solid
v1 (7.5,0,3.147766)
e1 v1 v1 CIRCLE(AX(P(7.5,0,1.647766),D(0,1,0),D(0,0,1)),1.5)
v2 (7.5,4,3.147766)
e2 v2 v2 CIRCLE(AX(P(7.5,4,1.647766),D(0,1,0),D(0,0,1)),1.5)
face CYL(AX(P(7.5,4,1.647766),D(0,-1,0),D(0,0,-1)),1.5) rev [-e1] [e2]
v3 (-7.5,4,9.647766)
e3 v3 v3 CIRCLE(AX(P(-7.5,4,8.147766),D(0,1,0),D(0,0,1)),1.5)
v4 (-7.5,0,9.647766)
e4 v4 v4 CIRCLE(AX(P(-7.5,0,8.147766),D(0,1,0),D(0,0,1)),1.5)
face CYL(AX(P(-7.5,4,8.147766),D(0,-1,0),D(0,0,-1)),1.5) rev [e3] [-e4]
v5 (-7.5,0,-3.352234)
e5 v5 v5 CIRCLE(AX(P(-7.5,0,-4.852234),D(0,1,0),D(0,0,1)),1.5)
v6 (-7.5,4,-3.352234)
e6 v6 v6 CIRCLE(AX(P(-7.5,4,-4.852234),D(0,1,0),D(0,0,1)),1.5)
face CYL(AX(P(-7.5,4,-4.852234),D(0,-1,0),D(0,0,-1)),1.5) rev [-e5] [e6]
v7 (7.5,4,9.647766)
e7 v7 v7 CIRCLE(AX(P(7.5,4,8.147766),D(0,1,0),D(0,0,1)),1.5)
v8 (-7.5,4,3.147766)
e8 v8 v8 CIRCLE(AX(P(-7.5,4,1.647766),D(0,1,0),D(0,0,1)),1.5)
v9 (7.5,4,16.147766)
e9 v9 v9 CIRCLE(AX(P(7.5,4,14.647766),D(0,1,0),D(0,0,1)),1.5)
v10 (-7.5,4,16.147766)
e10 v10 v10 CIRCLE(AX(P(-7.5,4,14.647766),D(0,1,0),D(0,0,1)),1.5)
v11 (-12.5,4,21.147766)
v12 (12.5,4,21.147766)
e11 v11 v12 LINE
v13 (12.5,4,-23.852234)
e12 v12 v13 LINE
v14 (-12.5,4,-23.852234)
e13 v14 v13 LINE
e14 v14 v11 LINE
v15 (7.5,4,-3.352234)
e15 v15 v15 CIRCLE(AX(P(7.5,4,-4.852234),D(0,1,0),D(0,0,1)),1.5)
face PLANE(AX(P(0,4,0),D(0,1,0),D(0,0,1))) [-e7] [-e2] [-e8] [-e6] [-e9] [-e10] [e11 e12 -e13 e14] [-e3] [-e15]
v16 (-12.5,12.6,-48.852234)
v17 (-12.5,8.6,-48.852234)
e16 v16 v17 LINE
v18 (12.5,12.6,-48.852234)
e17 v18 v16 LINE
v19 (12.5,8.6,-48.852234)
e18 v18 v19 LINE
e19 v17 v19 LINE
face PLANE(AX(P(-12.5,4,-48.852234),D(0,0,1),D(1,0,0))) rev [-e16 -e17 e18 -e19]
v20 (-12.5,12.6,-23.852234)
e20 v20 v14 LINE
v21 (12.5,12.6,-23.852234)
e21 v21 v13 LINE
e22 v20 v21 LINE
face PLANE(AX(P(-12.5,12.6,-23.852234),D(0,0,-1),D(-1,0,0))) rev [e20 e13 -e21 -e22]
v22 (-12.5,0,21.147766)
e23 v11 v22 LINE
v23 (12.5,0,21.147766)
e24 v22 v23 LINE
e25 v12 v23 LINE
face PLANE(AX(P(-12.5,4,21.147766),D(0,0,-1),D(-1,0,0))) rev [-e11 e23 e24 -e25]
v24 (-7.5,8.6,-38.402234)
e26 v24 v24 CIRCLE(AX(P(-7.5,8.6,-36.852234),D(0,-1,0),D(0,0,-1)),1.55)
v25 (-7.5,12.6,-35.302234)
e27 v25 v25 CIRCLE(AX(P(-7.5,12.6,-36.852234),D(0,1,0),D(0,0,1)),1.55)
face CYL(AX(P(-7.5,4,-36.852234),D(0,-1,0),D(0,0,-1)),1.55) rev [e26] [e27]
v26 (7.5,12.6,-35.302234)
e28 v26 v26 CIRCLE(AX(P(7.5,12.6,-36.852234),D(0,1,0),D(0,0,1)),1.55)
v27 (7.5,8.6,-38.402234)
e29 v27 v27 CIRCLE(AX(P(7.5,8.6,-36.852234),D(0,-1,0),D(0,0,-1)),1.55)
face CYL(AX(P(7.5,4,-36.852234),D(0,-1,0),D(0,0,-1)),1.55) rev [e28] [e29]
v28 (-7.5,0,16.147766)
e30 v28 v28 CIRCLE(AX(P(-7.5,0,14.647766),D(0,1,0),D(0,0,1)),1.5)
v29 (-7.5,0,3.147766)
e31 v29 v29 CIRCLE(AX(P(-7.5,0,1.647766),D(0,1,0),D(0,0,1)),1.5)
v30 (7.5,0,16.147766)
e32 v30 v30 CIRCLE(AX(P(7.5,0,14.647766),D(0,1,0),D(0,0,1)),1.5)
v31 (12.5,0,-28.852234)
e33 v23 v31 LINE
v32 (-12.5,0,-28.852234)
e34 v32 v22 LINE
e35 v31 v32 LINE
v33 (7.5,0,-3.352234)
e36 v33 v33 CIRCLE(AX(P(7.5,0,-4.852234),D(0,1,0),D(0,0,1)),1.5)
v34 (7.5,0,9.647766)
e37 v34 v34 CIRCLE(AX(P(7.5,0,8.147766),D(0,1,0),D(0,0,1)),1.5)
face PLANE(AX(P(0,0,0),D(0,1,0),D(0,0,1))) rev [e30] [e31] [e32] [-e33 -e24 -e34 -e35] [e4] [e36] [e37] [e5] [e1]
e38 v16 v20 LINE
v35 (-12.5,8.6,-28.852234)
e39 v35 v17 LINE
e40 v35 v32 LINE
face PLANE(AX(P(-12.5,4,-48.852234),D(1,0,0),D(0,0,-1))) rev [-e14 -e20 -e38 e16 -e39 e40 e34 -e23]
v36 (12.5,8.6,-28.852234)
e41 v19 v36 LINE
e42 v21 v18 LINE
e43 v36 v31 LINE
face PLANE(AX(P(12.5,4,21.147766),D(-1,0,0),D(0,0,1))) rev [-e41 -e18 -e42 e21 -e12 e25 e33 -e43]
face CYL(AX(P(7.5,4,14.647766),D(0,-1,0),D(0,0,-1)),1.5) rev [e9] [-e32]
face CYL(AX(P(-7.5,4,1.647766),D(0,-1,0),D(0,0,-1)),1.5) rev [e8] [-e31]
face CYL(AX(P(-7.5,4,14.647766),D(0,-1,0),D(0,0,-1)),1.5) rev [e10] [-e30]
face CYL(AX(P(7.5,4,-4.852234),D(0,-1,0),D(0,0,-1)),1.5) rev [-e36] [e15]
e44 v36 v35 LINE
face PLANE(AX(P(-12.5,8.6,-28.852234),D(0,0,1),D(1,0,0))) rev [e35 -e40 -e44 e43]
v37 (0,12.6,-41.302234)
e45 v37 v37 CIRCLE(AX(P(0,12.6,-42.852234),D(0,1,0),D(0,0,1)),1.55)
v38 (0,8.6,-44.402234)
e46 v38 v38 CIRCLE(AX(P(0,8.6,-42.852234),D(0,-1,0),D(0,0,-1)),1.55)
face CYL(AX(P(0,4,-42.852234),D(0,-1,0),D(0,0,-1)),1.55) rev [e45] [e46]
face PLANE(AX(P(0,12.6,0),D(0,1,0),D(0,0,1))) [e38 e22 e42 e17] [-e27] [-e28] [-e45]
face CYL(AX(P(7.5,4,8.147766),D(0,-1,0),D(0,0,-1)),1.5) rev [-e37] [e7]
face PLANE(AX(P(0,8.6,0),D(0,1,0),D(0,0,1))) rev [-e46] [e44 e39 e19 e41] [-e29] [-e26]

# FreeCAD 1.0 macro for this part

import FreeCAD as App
import Part
import Sketcher

V = App.Vector
Q = App.Units.Quantity


def add_polygon(sketch, points):
    """Adds a closed chain of lines whose ends are joined by coincident constraints."""
    first, n = sketch.GeometryCount, len(points)
    for a, b in zip(points, points[1:] + points[:1]):
        sketch.addGeometry(Part.LineSegment(App.Vector(*a, 0), App.Vector(*b, 0)), False)
    for i in range(n):
        sketch.addConstraint(Sketcher.Constraint("Coincident", first + i, 2, first + (i + 1) % n, 1))

doc = App.newDocument("Part")
body = doc.addObject("PartDesign::Body", "Body")

sketch1 = body.newObject("Sketcher::SketchObject", "Sketch")
sketch1.AttachmentSupport = (doc.getObject("XZ_Plane"), [""])
sketch1.MapMode = "FlatFace"
add_polygon(sketch1, [(-12.5, -48.9), (-12.5, 21.1), (12.5, 21.1), (12.5, -48.9)])
sketch1.addGeometry(Part.Circle(V(-7.5, 14.6, 0), V(0, 0, 1), 1.5), False)
sketch1.addGeometry(Part.Circle(V(-7.5, 8.1, 0), V(0, 0, 1), 1.5), False)
sketch1.addGeometry(Part.Circle(V(-7.5, 1.6, 0), V(0, 0, 1), 1.5), False)
sketch1.addGeometry(Part.Circle(V(-7.5, -4.9, 0), V(0, 0, 1), 1.5), False)
sketch1.addGeometry(Part.Circle(V(7.5, 14.6, 0), V(0, 0, 1), 1.5), False)
sketch1.addGeometry(Part.Circle(V(7.5, 8.1, 0), V(0, 0, 1), 1.5), False)
sketch1.addGeometry(Part.Circle(V(7.5, 1.6, 0), V(0, 0, 1), 1.5), False)
sketch1.addGeometry(Part.Circle(V(7.5, -4.9, 0), V(0, 0, 1), 1.5), False)
sketch1.addGeometry(Part.Circle(V(-7.5, -36.9, 0), V(0, 0, 1), 1.6), False)
sketch1.addGeometry(Part.Circle(V(0, -42.9, 0), V(0, 0, 1), 1.6), False)
sketch1.addGeometry(Part.Circle(V(7.5, -36.9, 0), V(0, 0, 1), 1.6), False)
sketch1.addConstraint([
    Sketcher.Constraint("Vertical", 0),
    Sketcher.Constraint("Horizontal", 1),
    Sketcher.Constraint("Vertical", 2),
    Sketcher.Constraint("Horizontal", 3),
    Sketcher.Constraint("Equal", 4, 5),
    Sketcher.Constraint("Equal", 5, 6),
    Sketcher.Constraint("Equal", 6, 7),
    Sketcher.Constraint("Equal", 7, 8),
    Sketcher.Constraint("Equal", 8, 9),
    Sketcher.Constraint("Equal", 9, 10),
    Sketcher.Constraint("Equal", 10, 11),
    Sketcher.Constraint("Equal", 12, 13),
    Sketcher.Constraint("Equal", 13, 14),
    Sketcher.Constraint("Symmetric", 4, 3, 8, 3, -2),
    Sketcher.Constraint("Symmetric", 5, 3, 9, 3, -2),
    Sketcher.Constraint("Symmetric", 6, 3, 10, 3, -2),
    Sketcher.Constraint("Symmetric", 7, 3, 11, 3, -2),
    Sketcher.Constraint("Symmetric", 12, 3, 14, 3, -2),
    Sketcher.Constraint("PointOnObject", 13, 3, -2),
    Sketcher.Constraint("Vertical", 4, 3, 5, 3),
    Sketcher.Constraint("Vertical", 5, 3, 6, 3),
    Sketcher.Constraint("Vertical", 6, 3, 7, 3),
    Sketcher.Constraint("Vertical", 7, 3, 12, 3),
    Sketcher.Constraint("Diameter", 4, Q("3 mm")),
    Sketcher.Constraint("Diameter", 12, Q("3.1 mm")),
    Sketcher.Constraint("DistanceX", 1, 1, 1, 2, Q("25 mm")),
    Sketcher.Constraint("DistanceY", 0, 1, 0, 2, Q("70 mm")),
    Sketcher.Constraint("DistanceY", 6, 3, 4, 3, Q("13 mm")),
    Sketcher.Constraint("DistanceY", 7, 3, 5, 3, Q("13 mm")),
    Sketcher.Constraint("DistanceX", 4, 3, 8, 3, Q("15 mm")),
    Sketcher.Constraint("DistanceY", 12, 3, 7, 3, Q("32 mm")),
    Sketcher.Constraint("DistanceY", 13, 3, 12, 3, Q("6 mm")),
    Sketcher.Constraint("DistanceX", 0, 2, 4, 3, Q("5 mm")),
    Sketcher.Constraint("DistanceY", 5, 3, 0, 2, Q("13 mm")),
    Sketcher.Constraint("DistanceY", 5, 3, 4, 3, Q("6.5 mm")),
    Sketcher.Constraint("DistanceY", -1, 1, 4, 3, Q("14.647766 mm")),
])
pad1 = body.newObject("PartDesign::Pad", "Pad")
pad1.Profile = sketch1
pad1.Length = 4
pad1.Reversed = True

sketch2 = body.newObject("Sketcher::SketchObject", "Sketch001")
sketch2.AttachmentSupport = (doc.getObject("XZ_Plane"), [""])
sketch2.MapMode = "FlatFace"
sketch2.AttachmentOffset = App.Placement(V(0, 0, -4), App.Rotation())
add_polygon(sketch2, [(-12.5, -48.9), (-12.5, -23.9), (12.5, -23.9), (12.5, -48.9)])
sketch2.addGeometry(Part.Circle(V(-7.5, -36.9, 0), V(0, 0, 1), 1.6), False)
sketch2.addGeometry(Part.Circle(V(7.5, -36.9, 0), V(0, 0, 1), 1.6), False)
sketch2.addGeometry(Part.Circle(V(0, -42.9, 0), V(0, 0, 1), 1.6), False)
sketch2.addConstraint([
    Sketcher.Constraint("Vertical", 0),
    Sketcher.Constraint("Horizontal", 1),
    Sketcher.Constraint("Vertical", 2),
    Sketcher.Constraint("Horizontal", 3),
    Sketcher.Constraint("Equal", 4, 5),
    Sketcher.Constraint("Equal", 5, 6),
    Sketcher.Constraint("Symmetric", 4, 3, 5, 3, -2),
    Sketcher.Constraint("PointOnObject", 6, 3, -2),
    Sketcher.Constraint("Equal", 3, 0),
    Sketcher.Constraint("Diameter", 4, Q("3.1 mm")),
    Sketcher.Constraint("DistanceX", 1, 1, 1, 2, Q("25 mm")),
    Sketcher.Constraint("DistanceX", 4, 3, 5, 3, Q("15 mm")),
    Sketcher.Constraint("DistanceY", 6, 3, 4, 3, Q("6 mm")),
    Sketcher.Constraint("DistanceX", 0, 2, 4, 3, Q("5 mm")),
    Sketcher.Constraint("DistanceY", 4, 3, 0, 2, Q("13 mm")),
    Sketcher.Constraint("DistanceY", 4, 3, -1, 1, Q("36.852234 mm")),
])
pad2 = body.newObject("PartDesign::Pad", "Pad001")
pad2.Profile = sketch2
pad2.Length = 8.6
pad2.Reversed = True

sketch3 = body.newObject("Sketcher::SketchObject", "Sketch002")
sketch3.AttachmentSupport = (doc.getObject("XZ_Plane"), [""])
sketch3.MapMode = "FlatFace"
add_polygon(sketch3, [(-12.5, -28.9), (-12.5, -48.9), (12.5, -48.9), (12.5, -28.9)])
sketch3.addGeometry(Part.Circle(V(0, -42.9, 0), V(0, 0, 1), 1.6), False)
sketch3.addGeometry(Part.Circle(V(-7.5, -36.9, 0), V(0, 0, 1), 1.6), False)
sketch3.addGeometry(Part.Circle(V(7.5, -36.9, 0), V(0, 0, 1), 1.6), False)
sketch3.addConstraint([
    Sketcher.Constraint("Vertical", 0),
    Sketcher.Constraint("Horizontal", 1),
    Sketcher.Constraint("Vertical", 2),
    Sketcher.Constraint("Horizontal", 3),
    Sketcher.Constraint("Equal", 4, 5),
    Sketcher.Constraint("Equal", 5, 6),
    Sketcher.Constraint("Symmetric", 5, 3, 6, 3, -2),
    Sketcher.Constraint("PointOnObject", 4, 3, -2),
    Sketcher.Constraint("Diameter", 4, Q("3.1 mm")),
    Sketcher.Constraint("DistanceX", 1, 1, 1, 2, Q("25 mm")),
    Sketcher.Constraint("DistanceY", 0, 2, 0, 1, Q("20 mm")),
    Sketcher.Constraint("DistanceY", 4, 3, 5, 3, Q("6 mm")),
    Sketcher.Constraint("DistanceX", 5, 3, 6, 3, Q("15 mm")),
    Sketcher.Constraint("DistanceX", 0, 2, 5, 3, Q("5 mm")),
    Sketcher.Constraint("DistanceY", 0, 2, 5, 3, Q("12 mm")),
    Sketcher.Constraint("DistanceY", 4, 3, -1, 1, Q("42.852234 mm")),
])
pocket1 = body.newObject("PartDesign::Pocket", "Pocket")
pocket1.Profile = sketch3
pocket1.Length = 8.6

doc.recompute()
